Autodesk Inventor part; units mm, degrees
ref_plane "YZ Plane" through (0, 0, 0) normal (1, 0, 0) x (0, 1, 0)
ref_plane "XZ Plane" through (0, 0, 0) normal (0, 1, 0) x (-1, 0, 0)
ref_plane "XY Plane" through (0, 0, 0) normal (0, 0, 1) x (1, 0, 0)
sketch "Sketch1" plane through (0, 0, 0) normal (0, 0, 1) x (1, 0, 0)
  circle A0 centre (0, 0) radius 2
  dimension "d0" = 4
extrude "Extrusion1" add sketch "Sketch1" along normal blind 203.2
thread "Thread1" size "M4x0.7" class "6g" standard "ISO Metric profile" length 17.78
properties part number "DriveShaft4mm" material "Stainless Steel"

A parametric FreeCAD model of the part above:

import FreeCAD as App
import Part
import Sketcher
from FreeCAD import Vector

doc = App.newDocument("Part")
params = doc.addObject("Spreadsheet::Sheet", "Params")
for row, (alias, value) in enumerate([
    ("sketch1_diameter", "4 mm"),
    ("pad1_length", "203.2 mm"),
], start=1):
    params.set(f"A{row}", alias)
    params.set(f"B{row}", "=" + value)
    params.setAlias(f"B{row}", alias)

body = doc.addObject("PartDesign::Body", "Body")

# Sketch on XY plane
sketch1 = body.newObject("Sketcher::SketchObject", "Sketch")
sketch1.AttachmentSupport = (doc.getObject("XY_Plane"), [""])
sketch1.MapMode = "FlatFace"
sketch1.addGeometry(Part.Circle(Vector(0, 0, 0), Vector(0, 0, 1), 2), False)
sketch1.addConstraint(Sketcher.Constraint("Coincident", 0, 3, -1, 1))
sketch1.addConstraint(Sketcher.Constraint("Diameter", 0, 4.0))
sketch1.setExpression("Constraints[1]", "Params.sketch1_diameter")
pad1 = body.newObject("PartDesign::Pad", "Pad")
pad1.Profile = sketch1
pad1.setExpression("Length", "Params.pad1_length")

doc.recompute()
